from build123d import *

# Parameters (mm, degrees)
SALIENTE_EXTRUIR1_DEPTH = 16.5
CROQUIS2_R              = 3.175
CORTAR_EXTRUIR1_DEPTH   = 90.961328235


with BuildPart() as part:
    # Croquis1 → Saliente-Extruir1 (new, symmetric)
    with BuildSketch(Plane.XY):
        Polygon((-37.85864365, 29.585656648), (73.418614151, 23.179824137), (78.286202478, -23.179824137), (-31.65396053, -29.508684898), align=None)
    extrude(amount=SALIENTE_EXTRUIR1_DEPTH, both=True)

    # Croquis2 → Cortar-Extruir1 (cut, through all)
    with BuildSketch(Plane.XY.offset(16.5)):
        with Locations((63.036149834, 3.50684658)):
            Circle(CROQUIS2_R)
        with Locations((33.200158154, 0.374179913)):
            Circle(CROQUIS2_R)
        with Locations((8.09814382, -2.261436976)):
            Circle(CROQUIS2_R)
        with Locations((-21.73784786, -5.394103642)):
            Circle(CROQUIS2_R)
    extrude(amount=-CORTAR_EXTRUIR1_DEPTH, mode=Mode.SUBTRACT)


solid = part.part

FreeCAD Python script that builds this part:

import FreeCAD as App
import Part
import Sketcher
from FreeCAD import Vector
Q = App.Units.Quantity

doc = App.newDocument("Part")
body = doc.addObject("PartDesign::Body", "Body")

# Sketch on XY plane
sketch1 = doc.addObject("Sketcher::SketchObject", "Sketch")
body.addObject(sketch1)
sketch1.AttachmentSupport = (doc.XY_Plane, [""])
sketch1.MapMode = "FlatFace"
sketch1.addGeometry([
    Part.LineSegment(Vector(73.418614, 23.179824, 0), Vector(-37.858644, 29.585657, 0)),
    Part.LineSegment(Vector(-37.858644, 29.585657, 0), Vector(-31.653961, -29.508685, 0)),
    Part.LineSegment(Vector(-31.653961, -29.508685, 0), Vector(78.286202, -23.179824, 0)),
    Part.LineSegment(Vector(78.286202, -23.179824, 0), Vector(73.418614, 23.179824, 0)),
], False)
sketch1.addConstraint([
    Sketcher.Constraint("Coincident", 0, 2, 1, 1),
    Sketcher.Constraint("Coincident", 1, 2, 2, 1),
    Sketcher.Constraint("Coincident", 2, 2, 3, 1),
    Sketcher.Constraint("Coincident", 3, 2, 0, 1),
    Sketcher.Constraint("Parallel", 1, 3),
    Sketcher.Constraint("DistanceX", 1, 2, -1, 1, Q("31.653961 mm")),
    Sketcher.Constraint("DistanceY", 1, 2, 0, 2, Q("59.094342 mm")),
    Sketcher.Constraint("DistanceY", 1, 2, 2, 2, Q("6.328861 mm")),
    Sketcher.Constraint("DistanceX", 3, 2, 2, 2, Q("4.867588 mm")),
    Sketcher.Constraint("DistanceY", 2, 2, 3, 2, Q("46.359648 mm")),
    Sketcher.Constraint("Distance", 0, Q("111.461486 mm")),
    Sketcher.Constraint("DistanceY", -1, 1, 0, 2, Q("29.585657 mm")),
])
pad1 = doc.addObject("PartDesign::Pad", "Pad")
body.addObject(pad1)
pad1.Profile = sketch1
pad1.Length = 33
pad1.Midplane = True

# Sketch on XY plane
sketch2 = doc.addObject("Sketcher::SketchObject", "Sketch001")
body.addObject(sketch2)
sketch2.AttachmentSupport = (doc.XY_Plane, [""])
sketch2.MapMode = "FlatFace"
sketch2.AttachmentOffset = App.Placement(Vector(0, 0, 16.5), App.Rotation())
sketch2.addGeometry([
    Part.Circle(Vector(63.03615, 3.506847, 0), Vector(0, 0, 1), 3.175),
    Part.Circle(Vector(33.200158, 0.37418, 0), Vector(0, 0, 1), 3.175),
    Part.Circle(Vector(8.098144, -2.261437, 0), Vector(0, 0, 1), 3.175),
    Part.Circle(Vector(-21.737848, -5.394104, 0), Vector(0, 0, 1), 3.175),
], False)
sketch2.addConstraint([
    Sketcher.Constraint("Equal", 0, 1),
    Sketcher.Constraint("Equal", 1, 2),
    Sketcher.Constraint("Equal", 2, 3),
    Sketcher.Constraint("Diameter", 0, Q("6.35 mm")),
    Sketcher.Constraint("DistanceX", -1, 1, 0, 3, Q("63.03615 mm")),
    Sketcher.Constraint("DistanceX", -1, 1, 1, 3, Q("33.200158 mm")),
    Sketcher.Constraint("DistanceY", -1, 1, 1, 3, Q("0.37418 mm")),
    Sketcher.Constraint("DistanceX", 3, 3, 2, 3, Q("29.835992 mm")),
    Sketcher.Constraint("DistanceY", 3, 3, 0, 3, Q("8.90095 mm")),
    Sketcher.Constraint("DistanceY", -1, 1, 0, 3, Q("3.506847 mm")),
    Sketcher.Constraint("DistanceX", -1, 1, 2, 3, Q("8.098144 mm")),
    Sketcher.Constraint("DistanceY", 2, 3, -1, 1, Q("2.261437 mm")),
])
pocket1 = doc.addObject("PartDesign::Pocket", "Pocket")
body.addObject(pocket1)
pocket1.Profile = sketch2
pocket1.Type = "ThroughAll"

doc.recompute()
